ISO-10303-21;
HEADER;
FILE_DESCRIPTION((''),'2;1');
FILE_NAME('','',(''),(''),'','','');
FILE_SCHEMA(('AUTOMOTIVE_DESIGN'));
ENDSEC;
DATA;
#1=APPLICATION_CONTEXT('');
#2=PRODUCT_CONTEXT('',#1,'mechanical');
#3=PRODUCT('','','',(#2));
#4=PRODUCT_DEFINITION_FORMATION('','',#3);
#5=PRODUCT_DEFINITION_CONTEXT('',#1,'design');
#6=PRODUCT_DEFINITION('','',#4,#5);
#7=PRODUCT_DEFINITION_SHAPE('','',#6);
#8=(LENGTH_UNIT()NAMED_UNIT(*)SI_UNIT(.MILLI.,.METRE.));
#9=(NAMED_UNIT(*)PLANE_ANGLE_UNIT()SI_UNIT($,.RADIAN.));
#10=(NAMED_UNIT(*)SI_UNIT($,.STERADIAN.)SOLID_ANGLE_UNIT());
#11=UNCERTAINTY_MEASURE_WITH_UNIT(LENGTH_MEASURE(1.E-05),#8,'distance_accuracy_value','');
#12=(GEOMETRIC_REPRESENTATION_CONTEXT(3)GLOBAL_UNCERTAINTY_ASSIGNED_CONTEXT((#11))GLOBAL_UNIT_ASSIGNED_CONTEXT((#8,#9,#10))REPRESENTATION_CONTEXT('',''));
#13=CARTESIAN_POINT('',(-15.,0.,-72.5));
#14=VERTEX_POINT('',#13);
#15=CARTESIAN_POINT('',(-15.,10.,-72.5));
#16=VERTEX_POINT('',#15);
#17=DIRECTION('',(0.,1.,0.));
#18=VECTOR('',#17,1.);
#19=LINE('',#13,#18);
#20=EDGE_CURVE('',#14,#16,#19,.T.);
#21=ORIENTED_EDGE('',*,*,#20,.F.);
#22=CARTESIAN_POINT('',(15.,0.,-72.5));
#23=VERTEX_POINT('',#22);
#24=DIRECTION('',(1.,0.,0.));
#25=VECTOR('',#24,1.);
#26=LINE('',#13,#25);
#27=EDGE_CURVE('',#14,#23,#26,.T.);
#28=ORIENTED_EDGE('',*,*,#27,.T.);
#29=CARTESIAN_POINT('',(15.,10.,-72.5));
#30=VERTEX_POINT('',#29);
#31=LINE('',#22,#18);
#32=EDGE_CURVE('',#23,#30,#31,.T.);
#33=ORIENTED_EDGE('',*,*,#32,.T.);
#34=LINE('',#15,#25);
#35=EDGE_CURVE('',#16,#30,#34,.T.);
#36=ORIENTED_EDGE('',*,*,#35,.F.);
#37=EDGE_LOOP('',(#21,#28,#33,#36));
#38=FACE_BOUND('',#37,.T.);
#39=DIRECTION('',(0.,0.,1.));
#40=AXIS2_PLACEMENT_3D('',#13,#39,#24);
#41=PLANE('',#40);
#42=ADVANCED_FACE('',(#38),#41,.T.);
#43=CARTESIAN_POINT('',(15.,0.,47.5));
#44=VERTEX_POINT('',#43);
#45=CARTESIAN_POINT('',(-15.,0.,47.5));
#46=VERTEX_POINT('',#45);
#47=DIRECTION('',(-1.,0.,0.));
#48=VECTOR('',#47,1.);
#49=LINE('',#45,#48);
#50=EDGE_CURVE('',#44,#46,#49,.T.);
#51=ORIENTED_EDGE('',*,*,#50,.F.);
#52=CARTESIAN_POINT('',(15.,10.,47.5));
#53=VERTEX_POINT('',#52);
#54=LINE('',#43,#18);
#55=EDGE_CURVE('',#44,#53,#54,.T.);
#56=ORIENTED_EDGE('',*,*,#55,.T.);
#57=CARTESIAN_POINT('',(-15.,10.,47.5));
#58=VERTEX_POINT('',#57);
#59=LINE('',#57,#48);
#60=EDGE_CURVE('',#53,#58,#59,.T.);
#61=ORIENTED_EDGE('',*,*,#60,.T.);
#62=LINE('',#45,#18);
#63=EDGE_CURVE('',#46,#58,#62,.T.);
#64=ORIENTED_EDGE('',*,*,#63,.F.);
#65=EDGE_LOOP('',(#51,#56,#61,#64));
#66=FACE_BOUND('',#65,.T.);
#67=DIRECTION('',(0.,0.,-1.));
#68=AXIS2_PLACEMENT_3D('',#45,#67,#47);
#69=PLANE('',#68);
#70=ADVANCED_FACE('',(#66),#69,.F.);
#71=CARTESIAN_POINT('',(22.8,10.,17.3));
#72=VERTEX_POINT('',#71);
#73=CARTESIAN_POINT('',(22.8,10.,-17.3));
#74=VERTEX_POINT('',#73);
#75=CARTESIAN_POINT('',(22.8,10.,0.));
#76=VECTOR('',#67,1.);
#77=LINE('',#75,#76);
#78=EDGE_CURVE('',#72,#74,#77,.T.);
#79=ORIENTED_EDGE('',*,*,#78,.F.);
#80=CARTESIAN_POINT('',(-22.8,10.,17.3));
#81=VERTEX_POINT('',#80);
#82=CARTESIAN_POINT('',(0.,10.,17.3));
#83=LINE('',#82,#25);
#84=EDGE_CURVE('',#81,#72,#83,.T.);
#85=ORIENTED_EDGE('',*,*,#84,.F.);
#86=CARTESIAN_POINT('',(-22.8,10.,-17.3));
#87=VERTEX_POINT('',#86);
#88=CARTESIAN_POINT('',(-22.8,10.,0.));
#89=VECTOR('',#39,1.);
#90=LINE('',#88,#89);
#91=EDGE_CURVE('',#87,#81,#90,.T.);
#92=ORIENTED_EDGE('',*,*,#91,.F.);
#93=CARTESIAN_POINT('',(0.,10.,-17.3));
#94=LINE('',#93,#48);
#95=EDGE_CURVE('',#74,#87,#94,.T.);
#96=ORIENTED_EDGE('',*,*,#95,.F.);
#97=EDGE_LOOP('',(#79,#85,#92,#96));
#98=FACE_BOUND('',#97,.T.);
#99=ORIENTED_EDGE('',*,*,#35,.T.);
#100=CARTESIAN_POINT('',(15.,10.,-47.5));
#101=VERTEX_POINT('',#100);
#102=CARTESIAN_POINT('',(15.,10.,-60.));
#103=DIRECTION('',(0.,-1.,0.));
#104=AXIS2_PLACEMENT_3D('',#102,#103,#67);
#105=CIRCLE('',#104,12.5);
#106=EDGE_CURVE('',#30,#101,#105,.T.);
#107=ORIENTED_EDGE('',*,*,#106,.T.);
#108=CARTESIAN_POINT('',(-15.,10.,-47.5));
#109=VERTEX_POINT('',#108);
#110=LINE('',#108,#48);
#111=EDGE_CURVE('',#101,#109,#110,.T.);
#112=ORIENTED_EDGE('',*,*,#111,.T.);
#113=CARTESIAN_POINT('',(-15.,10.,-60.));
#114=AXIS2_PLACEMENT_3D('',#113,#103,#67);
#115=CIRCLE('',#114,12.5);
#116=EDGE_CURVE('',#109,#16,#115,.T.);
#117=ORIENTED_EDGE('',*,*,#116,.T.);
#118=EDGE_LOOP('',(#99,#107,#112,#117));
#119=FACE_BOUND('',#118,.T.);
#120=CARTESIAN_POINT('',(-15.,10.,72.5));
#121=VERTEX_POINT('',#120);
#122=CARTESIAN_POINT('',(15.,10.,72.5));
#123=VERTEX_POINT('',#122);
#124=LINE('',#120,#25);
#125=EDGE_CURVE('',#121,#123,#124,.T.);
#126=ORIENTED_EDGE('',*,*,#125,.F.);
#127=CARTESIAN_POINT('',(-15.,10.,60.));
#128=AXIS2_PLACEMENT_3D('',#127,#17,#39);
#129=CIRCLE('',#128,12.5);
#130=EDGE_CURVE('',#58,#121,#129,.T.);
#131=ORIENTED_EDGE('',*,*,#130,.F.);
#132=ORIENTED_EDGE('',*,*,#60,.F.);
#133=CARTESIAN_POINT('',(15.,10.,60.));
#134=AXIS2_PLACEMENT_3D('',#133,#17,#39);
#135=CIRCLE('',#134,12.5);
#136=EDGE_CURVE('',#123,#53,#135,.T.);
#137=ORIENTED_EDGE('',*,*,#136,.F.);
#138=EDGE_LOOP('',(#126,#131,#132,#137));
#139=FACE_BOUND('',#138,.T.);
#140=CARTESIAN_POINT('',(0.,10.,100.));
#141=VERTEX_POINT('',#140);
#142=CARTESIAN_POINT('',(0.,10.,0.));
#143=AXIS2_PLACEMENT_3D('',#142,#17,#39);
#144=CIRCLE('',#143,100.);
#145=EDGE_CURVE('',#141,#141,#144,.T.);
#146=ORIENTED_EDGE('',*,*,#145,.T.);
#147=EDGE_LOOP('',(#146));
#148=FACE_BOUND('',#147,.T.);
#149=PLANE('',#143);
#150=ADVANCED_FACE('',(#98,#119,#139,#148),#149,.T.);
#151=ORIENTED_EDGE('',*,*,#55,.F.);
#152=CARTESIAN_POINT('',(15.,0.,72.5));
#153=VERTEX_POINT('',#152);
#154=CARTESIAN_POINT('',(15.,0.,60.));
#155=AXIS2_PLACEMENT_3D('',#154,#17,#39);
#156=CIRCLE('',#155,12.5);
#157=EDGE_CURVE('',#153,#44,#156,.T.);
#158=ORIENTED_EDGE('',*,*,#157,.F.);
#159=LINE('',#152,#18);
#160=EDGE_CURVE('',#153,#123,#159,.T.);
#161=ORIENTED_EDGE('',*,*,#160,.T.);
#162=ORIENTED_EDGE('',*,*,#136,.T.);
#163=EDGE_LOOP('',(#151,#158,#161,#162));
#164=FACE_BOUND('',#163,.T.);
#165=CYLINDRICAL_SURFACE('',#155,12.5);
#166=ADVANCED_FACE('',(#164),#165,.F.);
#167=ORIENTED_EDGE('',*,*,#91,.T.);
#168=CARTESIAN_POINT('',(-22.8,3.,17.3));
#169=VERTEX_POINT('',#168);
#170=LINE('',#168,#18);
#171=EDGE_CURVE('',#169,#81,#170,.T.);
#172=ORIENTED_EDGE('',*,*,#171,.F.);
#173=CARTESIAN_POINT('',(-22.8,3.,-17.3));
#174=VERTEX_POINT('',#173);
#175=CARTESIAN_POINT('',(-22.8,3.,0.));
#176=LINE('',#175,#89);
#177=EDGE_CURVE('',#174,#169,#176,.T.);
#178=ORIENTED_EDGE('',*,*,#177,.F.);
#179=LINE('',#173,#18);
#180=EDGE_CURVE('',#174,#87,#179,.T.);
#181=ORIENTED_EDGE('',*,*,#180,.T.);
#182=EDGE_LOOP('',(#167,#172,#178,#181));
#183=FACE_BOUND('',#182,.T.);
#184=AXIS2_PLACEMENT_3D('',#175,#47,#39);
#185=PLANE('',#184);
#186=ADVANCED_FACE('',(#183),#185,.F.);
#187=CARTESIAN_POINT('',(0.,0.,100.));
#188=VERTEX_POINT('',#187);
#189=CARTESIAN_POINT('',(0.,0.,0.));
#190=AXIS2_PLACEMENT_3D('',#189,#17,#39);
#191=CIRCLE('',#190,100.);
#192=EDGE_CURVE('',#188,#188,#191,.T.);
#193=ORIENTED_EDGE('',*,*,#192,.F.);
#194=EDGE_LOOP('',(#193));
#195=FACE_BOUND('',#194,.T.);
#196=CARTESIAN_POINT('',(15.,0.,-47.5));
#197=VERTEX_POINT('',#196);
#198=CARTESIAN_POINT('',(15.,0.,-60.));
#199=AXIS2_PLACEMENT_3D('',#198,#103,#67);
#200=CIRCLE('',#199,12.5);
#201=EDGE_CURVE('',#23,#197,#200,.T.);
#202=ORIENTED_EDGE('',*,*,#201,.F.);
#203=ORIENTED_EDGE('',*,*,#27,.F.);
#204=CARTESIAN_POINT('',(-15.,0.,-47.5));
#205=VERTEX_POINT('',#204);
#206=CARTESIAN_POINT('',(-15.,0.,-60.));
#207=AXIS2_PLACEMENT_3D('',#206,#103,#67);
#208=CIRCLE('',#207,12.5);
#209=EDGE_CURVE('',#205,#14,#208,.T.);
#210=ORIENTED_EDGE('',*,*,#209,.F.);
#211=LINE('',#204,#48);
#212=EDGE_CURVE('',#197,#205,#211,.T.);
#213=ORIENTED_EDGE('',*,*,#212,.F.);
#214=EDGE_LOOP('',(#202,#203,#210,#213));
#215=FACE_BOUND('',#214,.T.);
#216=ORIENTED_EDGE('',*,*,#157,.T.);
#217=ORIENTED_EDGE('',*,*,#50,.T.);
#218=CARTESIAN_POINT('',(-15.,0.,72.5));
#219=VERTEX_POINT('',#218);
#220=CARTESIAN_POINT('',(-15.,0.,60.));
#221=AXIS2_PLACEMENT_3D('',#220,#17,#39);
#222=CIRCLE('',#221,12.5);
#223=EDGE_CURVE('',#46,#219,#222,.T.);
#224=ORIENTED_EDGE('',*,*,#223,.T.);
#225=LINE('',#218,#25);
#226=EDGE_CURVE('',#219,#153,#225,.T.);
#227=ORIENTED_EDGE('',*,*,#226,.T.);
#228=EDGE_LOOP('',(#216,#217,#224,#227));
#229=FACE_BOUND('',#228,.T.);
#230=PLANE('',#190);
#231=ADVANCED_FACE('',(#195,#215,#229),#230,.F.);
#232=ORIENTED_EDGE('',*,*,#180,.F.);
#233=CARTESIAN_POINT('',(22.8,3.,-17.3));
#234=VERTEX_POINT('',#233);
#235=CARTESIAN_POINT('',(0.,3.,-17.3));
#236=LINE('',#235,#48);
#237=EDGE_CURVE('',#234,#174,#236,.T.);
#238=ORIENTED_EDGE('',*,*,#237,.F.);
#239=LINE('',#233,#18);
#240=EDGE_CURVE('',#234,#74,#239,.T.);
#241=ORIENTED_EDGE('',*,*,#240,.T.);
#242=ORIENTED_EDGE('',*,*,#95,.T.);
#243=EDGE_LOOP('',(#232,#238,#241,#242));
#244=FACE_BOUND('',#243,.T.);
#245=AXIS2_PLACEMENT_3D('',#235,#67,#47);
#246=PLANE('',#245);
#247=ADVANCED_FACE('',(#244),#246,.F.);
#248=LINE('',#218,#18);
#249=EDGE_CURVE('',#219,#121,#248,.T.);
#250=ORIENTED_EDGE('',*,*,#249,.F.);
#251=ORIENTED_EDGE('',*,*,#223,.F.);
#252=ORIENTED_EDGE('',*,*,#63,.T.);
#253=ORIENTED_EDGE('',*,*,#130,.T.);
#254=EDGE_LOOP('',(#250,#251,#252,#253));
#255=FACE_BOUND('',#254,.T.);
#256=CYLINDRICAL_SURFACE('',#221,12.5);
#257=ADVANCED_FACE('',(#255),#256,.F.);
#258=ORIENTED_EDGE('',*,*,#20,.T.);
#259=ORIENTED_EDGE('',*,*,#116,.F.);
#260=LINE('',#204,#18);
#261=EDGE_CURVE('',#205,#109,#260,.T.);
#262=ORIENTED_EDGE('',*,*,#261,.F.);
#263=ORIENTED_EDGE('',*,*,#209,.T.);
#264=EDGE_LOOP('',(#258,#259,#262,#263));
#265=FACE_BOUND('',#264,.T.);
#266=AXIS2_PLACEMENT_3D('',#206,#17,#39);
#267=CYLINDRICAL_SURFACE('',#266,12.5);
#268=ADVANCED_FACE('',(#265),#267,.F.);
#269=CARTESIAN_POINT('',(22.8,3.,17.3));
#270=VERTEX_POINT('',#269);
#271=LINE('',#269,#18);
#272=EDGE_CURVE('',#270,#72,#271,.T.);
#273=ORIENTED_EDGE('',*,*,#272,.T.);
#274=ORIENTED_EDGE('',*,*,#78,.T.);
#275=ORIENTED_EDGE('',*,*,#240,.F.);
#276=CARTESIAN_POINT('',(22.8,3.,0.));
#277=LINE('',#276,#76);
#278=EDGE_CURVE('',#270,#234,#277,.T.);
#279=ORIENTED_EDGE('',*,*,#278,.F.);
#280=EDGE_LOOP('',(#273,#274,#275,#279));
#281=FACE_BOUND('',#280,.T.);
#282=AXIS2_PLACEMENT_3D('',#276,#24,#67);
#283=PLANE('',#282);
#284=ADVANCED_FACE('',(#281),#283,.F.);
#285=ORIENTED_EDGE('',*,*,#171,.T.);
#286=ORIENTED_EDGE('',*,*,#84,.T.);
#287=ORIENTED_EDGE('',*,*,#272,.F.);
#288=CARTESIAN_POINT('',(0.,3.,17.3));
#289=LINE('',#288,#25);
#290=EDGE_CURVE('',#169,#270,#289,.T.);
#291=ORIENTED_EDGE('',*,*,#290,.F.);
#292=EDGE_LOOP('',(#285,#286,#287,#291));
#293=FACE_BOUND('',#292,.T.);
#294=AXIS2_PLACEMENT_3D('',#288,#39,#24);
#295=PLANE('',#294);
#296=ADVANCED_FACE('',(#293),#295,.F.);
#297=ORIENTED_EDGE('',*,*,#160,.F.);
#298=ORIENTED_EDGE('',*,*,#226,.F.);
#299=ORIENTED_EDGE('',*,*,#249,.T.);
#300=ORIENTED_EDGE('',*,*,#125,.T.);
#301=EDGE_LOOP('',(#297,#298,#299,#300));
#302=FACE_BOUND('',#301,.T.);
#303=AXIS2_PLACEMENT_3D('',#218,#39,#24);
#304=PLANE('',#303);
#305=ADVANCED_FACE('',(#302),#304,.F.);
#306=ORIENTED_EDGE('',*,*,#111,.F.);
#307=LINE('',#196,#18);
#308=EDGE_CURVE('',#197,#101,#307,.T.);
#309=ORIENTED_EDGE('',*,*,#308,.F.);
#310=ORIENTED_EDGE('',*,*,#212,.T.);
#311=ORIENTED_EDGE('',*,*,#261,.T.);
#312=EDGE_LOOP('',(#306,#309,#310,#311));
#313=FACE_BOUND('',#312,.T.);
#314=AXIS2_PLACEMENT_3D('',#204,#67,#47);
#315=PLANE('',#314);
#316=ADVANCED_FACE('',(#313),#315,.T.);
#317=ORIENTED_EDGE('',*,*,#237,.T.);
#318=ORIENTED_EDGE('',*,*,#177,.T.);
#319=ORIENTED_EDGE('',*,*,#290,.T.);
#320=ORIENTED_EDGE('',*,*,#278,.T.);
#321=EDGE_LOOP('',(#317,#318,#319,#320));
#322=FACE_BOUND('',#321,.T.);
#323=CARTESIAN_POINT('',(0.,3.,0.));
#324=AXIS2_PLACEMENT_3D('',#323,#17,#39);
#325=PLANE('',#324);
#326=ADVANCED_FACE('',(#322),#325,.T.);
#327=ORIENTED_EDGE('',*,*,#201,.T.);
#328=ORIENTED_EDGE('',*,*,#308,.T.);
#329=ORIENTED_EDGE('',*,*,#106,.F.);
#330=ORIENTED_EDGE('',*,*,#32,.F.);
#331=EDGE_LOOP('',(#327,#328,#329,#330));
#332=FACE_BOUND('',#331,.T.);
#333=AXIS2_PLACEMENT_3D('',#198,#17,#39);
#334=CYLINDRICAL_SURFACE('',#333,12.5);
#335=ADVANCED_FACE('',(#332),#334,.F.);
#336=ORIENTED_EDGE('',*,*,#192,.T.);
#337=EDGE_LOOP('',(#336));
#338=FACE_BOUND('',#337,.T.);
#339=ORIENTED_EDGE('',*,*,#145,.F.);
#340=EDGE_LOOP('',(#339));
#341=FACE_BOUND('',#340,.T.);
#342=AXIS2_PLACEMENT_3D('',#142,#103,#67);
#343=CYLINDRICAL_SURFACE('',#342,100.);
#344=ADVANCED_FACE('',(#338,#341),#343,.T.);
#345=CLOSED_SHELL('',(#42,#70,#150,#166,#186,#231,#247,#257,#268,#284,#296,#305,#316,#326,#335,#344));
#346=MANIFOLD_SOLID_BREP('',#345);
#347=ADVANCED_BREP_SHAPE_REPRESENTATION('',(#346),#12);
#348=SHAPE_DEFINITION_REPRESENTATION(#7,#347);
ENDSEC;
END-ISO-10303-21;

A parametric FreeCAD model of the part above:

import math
import FreeCAD as App
import Part
import Sketcher
Q = App.Units.Quantity


def add_polygon(sketch, points):
    """Adds a closed chain of lines whose ends are joined by coincident constraints."""
    first, n = sketch.GeometryCount, len(points)
    for a, b in zip(points, points[1:] + points[:1]):
        sketch.addGeometry(Part.LineSegment(App.Vector(*a, 0), App.Vector(*b, 0)), False)
    for i in range(n):
        sketch.addConstraint(Sketcher.Constraint("Coincident", first + i, 2, first + (i + 1) % n, 1))

doc = App.newDocument("Part")
body = doc.addObject("PartDesign::Body", "Body")

# Sketch on XZ plane
sketch1 = doc.addObject("Sketcher::SketchObject", "Sketch")
body.addObject(sketch1)
sketch1.AttachmentSupport = (doc.XZ_Plane, [""])
sketch1.MapMode = "FlatFace"
sketch1.addGeometry(Part.Circle(App.Vector(0, 0, 0), App.Vector(0, 0, 1), 100), False)
sketch1.addConstraint(Sketcher.Constraint("Coincident", 0, 3, -1, 1))
sketch1.addConstraint(Sketcher.Constraint("Diameter", 0, Q("200 mm")))
pad1 = doc.addObject("PartDesign::Pad", "Pad")
body.addObject(pad1)
pad1.Profile = sketch1
pad1.Length = 10
pad1.Reversed = True

# Sketch on XZ plane
sketch2 = doc.addObject("Sketcher::SketchObject", "Sketch001")
body.addObject(sketch2)
sketch2.AttachmentSupport = (doc.XZ_Plane, [""])
sketch2.MapMode = "FlatFace"
sketch2.AttachmentOffset = App.Placement(App.Vector(0, 0, -10), App.Rotation())
sketch2.addGeometry(Part.LineSegment(App.Vector(15, 47.5, 0), App.Vector(-15, 47.5, 0)), False)
sketch2.addGeometry(Part.ArcOfCircle(Part.Circle(App.Vector(-15, 60, 0), App.Vector(0, 0, 1), 12.5), math.radians(90), math.radians(270)), False)
sketch2.addGeometry(Part.LineSegment(App.Vector(-15, 72.5, 0), App.Vector(15, 72.5, 0)), False)
sketch2.addGeometry(Part.ArcOfCircle(Part.Circle(App.Vector(15, 60, 0), App.Vector(0, 0, 1), 12.5), math.radians(-90), math.radians(90)), False)
sketch2.addConstraint(Sketcher.Constraint("Tangent", 0, 2, 1, 2))
sketch2.addConstraint(Sketcher.Constraint("Tangent", 1, 1, 2, 1))
sketch2.addConstraint(Sketcher.Constraint("Tangent", 2, 2, 3, 2))
sketch2.addConstraint(Sketcher.Constraint("Tangent", 3, 1, 0, 1))
sketch2.addConstraint(Sketcher.Constraint("Horizontal", 0))
sketch2.addConstraint(Sketcher.Constraint("Horizontal", 2))
sketch2.addConstraint(Sketcher.Constraint("Radius", 1, Q("12.5 mm")))
sketch2.addConstraint(Sketcher.Constraint("DistanceX", 0, 2, 0, 1, Q("30 mm")))
sketch2.addConstraint(Sketcher.Constraint("DistanceX", 1, 3, -1, 1, Q("15 mm")))
sketch2.addConstraint(Sketcher.Constraint("DistanceY", -1, 1, 1, 3, Q("60 mm")))
pocket1 = doc.addObject("PartDesign::Pocket", "Pocket")
body.addObject(pocket1)
pocket1.Profile = sketch2
pocket1.Type = "ThroughAll"
pocket1.Reversed = True
doc.recompute()

mirrored = doc.addObject("PartDesign::Mirrored", "Mirrored")
body.addObject(mirrored)
mirrored.Originals = [pocket1]
mirrored.MirrorPlane = (doc.XY_Plane, [""])
body.Tip = mirrored

# Sketch on XZ plane
sketch3 = doc.addObject("Sketcher::SketchObject", "Sketch002")
body.addObject(sketch3)
sketch3.AttachmentSupport = (doc.XZ_Plane, [""])
sketch3.MapMode = "FlatFace"
sketch3.AttachmentOffset = App.Placement(App.Vector(0, 0, -10), App.Rotation())
add_polygon(sketch3, [(-22.8, -17.3), (-22.8, 17.3), (22.8, 17.3), (22.8, -17.3)])  # lines 0-3
sketch3.addConstraint(Sketcher.Constraint("Vertical", 0))
sketch3.addConstraint(Sketcher.Constraint("Horizontal", 1))
sketch3.addConstraint(Sketcher.Constraint("Vertical", 2))
sketch3.addConstraint(Sketcher.Constraint("Horizontal", 3))
sketch3.addConstraint(Sketcher.Constraint("Symmetric", 0, 2, 2, 2, -1, 1))
sketch3.addConstraint(Sketcher.Constraint("DistanceX", 1, 1, 1, 2, Q("45.6 mm")))
sketch3.addConstraint(Sketcher.Constraint("DistanceY", 0, 1, 0, 2, Q("34.6 mm")))
pocket2 = doc.addObject("PartDesign::Pocket", "Pocket001")
body.addObject(pocket2)
pocket2.Profile = sketch3
pocket2.Length = 7
pocket2.Reversed = True

doc.recompute()
